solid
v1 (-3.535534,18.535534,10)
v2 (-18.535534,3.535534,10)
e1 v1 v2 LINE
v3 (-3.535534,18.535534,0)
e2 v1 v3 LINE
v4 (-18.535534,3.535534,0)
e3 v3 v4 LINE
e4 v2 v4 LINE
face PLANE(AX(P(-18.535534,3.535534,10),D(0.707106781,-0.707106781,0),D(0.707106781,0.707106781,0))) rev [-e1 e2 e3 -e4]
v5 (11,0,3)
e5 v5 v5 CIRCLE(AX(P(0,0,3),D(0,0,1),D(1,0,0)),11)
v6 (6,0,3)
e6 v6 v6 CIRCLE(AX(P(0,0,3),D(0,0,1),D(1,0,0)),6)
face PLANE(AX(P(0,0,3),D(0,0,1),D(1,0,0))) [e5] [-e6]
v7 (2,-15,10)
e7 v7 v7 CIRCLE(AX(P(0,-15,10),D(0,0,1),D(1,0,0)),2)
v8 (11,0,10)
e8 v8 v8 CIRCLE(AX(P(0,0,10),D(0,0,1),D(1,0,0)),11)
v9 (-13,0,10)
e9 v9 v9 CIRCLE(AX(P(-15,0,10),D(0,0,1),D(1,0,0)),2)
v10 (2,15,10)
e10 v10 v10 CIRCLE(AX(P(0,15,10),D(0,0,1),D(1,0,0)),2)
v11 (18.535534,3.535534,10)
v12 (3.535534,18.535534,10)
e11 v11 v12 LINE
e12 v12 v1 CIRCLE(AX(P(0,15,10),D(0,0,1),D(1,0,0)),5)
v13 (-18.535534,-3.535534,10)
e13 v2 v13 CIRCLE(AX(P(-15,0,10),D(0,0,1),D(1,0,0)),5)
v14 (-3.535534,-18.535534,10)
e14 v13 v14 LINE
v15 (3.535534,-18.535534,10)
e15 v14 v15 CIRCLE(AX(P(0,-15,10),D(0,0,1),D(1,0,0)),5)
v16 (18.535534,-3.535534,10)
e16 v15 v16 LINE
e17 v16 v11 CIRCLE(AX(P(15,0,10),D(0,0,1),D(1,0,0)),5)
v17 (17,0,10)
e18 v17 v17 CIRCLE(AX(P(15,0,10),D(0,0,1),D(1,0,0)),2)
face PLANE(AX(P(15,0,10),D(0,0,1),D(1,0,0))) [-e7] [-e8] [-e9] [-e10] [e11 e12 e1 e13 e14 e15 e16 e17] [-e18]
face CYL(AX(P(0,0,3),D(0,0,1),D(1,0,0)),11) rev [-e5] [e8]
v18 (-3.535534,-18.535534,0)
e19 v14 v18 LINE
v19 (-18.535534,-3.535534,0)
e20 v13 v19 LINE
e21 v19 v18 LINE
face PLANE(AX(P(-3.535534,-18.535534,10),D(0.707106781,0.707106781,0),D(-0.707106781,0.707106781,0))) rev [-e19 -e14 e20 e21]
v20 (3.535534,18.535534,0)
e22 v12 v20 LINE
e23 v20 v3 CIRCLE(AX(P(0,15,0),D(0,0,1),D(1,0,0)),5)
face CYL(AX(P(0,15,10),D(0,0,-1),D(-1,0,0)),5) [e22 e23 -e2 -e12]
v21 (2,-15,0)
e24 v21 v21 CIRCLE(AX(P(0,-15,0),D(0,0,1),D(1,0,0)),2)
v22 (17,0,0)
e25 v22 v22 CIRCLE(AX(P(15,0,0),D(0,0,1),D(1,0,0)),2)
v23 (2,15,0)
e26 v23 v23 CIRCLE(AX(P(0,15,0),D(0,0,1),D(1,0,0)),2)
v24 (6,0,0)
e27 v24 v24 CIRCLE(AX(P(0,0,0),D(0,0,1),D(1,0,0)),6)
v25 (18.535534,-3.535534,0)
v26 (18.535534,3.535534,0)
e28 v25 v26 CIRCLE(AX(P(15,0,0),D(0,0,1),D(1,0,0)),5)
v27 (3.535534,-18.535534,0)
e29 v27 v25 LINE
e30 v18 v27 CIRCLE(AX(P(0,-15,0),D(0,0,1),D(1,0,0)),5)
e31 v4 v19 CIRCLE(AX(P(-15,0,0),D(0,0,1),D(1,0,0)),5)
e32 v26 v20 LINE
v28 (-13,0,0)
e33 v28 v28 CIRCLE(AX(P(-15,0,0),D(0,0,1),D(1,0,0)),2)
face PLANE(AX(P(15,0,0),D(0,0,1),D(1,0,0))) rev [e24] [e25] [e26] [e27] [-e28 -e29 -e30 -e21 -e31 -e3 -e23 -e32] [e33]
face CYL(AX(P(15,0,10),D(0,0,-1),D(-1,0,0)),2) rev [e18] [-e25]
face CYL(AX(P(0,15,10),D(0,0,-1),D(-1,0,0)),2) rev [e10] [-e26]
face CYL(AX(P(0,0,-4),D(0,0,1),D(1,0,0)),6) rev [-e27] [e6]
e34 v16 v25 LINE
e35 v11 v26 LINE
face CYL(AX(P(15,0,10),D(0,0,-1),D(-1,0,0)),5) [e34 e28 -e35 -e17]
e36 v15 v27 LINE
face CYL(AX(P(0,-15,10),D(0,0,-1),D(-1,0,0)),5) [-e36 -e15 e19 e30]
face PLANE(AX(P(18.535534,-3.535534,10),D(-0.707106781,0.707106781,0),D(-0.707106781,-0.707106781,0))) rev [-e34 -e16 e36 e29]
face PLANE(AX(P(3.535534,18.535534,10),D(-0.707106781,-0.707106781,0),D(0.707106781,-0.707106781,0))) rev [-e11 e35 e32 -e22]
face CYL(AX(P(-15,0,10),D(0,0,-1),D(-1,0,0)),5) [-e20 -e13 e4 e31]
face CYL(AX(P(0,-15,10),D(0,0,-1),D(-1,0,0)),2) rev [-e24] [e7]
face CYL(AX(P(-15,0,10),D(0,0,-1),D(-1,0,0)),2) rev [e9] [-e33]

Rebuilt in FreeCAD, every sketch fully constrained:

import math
import FreeCAD as App
import Part
import Sketcher

doc = App.newDocument("Part")
body = doc.addObject("PartDesign::Body", "Body")

# Sketch on XY plane
sketch1 = body.newObject("Sketcher::SketchObject", "Sketch")
sketch1.AttachmentSupport = (doc.getObject("XY_Plane"), [""])
sketch1.MapMode = "FlatFace"
sketch1.addGeometry([
    Part.LineSegment(App.Vector(-3.5, 18.5, 0), App.Vector(-18.5, 3.5, 0)),  # 0
    Part.ArcOfCircle(Part.Circle(App.Vector(-15, 0, 0), App.Vector(0, 0, 1), 5), math.radians(135), math.radians(225)),  # 1
    Part.LineSegment(App.Vector(-18.5, -3.5, 0), App.Vector(-3.5, -18.5, 0)),  # 2
    Part.ArcOfCircle(Part.Circle(App.Vector(0, -15, 0), App.Vector(0, 0, 1), 5), math.radians(-135), math.radians(-45)),  # 3
    Part.LineSegment(App.Vector(3.5, -18.5, 0), App.Vector(18.5, -3.5, 0)),  # 4
    Part.ArcOfCircle(Part.Circle(App.Vector(15, 0, 0), App.Vector(0, 0, 1), 5), math.radians(-45), math.radians(45)),  # 5
    Part.LineSegment(App.Vector(18.5, 3.5, 0), App.Vector(3.5, 18.5, 0)),  # 6
    Part.ArcOfCircle(Part.Circle(App.Vector(0, 15, 0), App.Vector(0, 0, 1), 5), math.radians(45), math.radians(135)),  # 7
    Part.Circle(App.Vector(0, -15, 0), App.Vector(0, 0, 1), 2),  # 8
    Part.Circle(App.Vector(15, 0, 0), App.Vector(0, 0, 1), 2),  # 9
    Part.Circle(App.Vector(-15, 0, 0), App.Vector(0, 0, 1), 2),  # 10
    Part.Circle(App.Vector(0, 15, 0), App.Vector(0, 0, 1), 2),  # 11
], False)
sketch1.addConstraint([
    Sketcher.Constraint("Tangent", 0, 2, 1, 1),
    Sketcher.Constraint("Tangent", 1, 2, 2, 1),
    Sketcher.Constraint("Tangent", 2, 2, 3, 1),
    Sketcher.Constraint("Tangent", 3, 2, 4, 1),
    Sketcher.Constraint("Tangent", 4, 2, 5, 1),
    Sketcher.Constraint("Tangent", 5, 2, 6, 1),
    Sketcher.Constraint("Tangent", 6, 2, 7, 1),
    Sketcher.Constraint("Tangent", 7, 2, 0, 1),
    Sketcher.Constraint("Coincident", 8, 3, 3, 3),
    Sketcher.Constraint("Coincident", 9, 3, 5, 3),
    Sketcher.Constraint("Coincident", 10, 3, 1, 3),
    Sketcher.Constraint("Coincident", 11, 3, 7, 3),
    Sketcher.Constraint("Equal", 1, 3),
    Sketcher.Constraint("Equal", 3, 5),
    Sketcher.Constraint("Equal", 5, 7),
    Sketcher.Constraint("Equal", 8, 9),
    Sketcher.Constraint("Equal", 9, 10),
    Sketcher.Constraint("Equal", 10, 11),
    Sketcher.Constraint("Symmetric", 1, 3, 5, 3, -1, 1),
    Sketcher.Constraint("Symmetric", 3, 3, 7, 3, -1, 1),
    Sketcher.Constraint("Symmetric", 2, 2, 3, 2, -2),
    Sketcher.Constraint("Perpendicular", 0, 2),
    Sketcher.Constraint("Diameter", 8, 4.0),
    Sketcher.Constraint("Radius", 1, 5.0),
    Sketcher.Constraint("DistanceX", 1, 3, -1, 1, 15.0),
])
pad1 = body.newObject("PartDesign::Pad", "Pad")
pad1.Profile = sketch1
pad1.Length = 10

# Sketch on XY plane
sketch2 = body.newObject("Sketcher::SketchObject", "Sketch001")
sketch2.AttachmentSupport = (doc.getObject("XY_Plane"), [""])
sketch2.MapMode = "FlatFace"
sketch2.AttachmentOffset = App.Placement(App.Vector(0, 0, 10), App.Rotation())
sketch2.addGeometry(Part.Circle(App.Vector(0, 0, 0), App.Vector(0, 0, 1), 11), False)
sketch2.addConstraint([
    Sketcher.Constraint("Coincident", 0, 3, -1, 1),
    Sketcher.Constraint("Diameter", 0, 22.0),
])
pocket1 = body.newObject("PartDesign::Pocket", "Pocket")
pocket1.Profile = sketch2
pocket1.Length = 7

# Sketch on XY plane
sketch3 = body.newObject("Sketcher::SketchObject", "Sketch002")
sketch3.AttachmentSupport = (doc.getObject("XY_Plane"), [""])
sketch3.MapMode = "FlatFace"
sketch3.AttachmentOffset = App.Placement(App.Vector(0, 0, 3), App.Rotation())
sketch3.addGeometry(Part.Circle(App.Vector(0, 0, 0), App.Vector(0, 0, 1), 6), False)
sketch3.addConstraint([
    Sketcher.Constraint("Coincident", 0, 3, -1, 1),
    Sketcher.Constraint("Diameter", 0, 12.0),
])
pocket2 = body.newObject("PartDesign::Pocket", "Pocket001")
pocket2.Profile = sketch3
pocket2.Length = 7

doc.recompute()
